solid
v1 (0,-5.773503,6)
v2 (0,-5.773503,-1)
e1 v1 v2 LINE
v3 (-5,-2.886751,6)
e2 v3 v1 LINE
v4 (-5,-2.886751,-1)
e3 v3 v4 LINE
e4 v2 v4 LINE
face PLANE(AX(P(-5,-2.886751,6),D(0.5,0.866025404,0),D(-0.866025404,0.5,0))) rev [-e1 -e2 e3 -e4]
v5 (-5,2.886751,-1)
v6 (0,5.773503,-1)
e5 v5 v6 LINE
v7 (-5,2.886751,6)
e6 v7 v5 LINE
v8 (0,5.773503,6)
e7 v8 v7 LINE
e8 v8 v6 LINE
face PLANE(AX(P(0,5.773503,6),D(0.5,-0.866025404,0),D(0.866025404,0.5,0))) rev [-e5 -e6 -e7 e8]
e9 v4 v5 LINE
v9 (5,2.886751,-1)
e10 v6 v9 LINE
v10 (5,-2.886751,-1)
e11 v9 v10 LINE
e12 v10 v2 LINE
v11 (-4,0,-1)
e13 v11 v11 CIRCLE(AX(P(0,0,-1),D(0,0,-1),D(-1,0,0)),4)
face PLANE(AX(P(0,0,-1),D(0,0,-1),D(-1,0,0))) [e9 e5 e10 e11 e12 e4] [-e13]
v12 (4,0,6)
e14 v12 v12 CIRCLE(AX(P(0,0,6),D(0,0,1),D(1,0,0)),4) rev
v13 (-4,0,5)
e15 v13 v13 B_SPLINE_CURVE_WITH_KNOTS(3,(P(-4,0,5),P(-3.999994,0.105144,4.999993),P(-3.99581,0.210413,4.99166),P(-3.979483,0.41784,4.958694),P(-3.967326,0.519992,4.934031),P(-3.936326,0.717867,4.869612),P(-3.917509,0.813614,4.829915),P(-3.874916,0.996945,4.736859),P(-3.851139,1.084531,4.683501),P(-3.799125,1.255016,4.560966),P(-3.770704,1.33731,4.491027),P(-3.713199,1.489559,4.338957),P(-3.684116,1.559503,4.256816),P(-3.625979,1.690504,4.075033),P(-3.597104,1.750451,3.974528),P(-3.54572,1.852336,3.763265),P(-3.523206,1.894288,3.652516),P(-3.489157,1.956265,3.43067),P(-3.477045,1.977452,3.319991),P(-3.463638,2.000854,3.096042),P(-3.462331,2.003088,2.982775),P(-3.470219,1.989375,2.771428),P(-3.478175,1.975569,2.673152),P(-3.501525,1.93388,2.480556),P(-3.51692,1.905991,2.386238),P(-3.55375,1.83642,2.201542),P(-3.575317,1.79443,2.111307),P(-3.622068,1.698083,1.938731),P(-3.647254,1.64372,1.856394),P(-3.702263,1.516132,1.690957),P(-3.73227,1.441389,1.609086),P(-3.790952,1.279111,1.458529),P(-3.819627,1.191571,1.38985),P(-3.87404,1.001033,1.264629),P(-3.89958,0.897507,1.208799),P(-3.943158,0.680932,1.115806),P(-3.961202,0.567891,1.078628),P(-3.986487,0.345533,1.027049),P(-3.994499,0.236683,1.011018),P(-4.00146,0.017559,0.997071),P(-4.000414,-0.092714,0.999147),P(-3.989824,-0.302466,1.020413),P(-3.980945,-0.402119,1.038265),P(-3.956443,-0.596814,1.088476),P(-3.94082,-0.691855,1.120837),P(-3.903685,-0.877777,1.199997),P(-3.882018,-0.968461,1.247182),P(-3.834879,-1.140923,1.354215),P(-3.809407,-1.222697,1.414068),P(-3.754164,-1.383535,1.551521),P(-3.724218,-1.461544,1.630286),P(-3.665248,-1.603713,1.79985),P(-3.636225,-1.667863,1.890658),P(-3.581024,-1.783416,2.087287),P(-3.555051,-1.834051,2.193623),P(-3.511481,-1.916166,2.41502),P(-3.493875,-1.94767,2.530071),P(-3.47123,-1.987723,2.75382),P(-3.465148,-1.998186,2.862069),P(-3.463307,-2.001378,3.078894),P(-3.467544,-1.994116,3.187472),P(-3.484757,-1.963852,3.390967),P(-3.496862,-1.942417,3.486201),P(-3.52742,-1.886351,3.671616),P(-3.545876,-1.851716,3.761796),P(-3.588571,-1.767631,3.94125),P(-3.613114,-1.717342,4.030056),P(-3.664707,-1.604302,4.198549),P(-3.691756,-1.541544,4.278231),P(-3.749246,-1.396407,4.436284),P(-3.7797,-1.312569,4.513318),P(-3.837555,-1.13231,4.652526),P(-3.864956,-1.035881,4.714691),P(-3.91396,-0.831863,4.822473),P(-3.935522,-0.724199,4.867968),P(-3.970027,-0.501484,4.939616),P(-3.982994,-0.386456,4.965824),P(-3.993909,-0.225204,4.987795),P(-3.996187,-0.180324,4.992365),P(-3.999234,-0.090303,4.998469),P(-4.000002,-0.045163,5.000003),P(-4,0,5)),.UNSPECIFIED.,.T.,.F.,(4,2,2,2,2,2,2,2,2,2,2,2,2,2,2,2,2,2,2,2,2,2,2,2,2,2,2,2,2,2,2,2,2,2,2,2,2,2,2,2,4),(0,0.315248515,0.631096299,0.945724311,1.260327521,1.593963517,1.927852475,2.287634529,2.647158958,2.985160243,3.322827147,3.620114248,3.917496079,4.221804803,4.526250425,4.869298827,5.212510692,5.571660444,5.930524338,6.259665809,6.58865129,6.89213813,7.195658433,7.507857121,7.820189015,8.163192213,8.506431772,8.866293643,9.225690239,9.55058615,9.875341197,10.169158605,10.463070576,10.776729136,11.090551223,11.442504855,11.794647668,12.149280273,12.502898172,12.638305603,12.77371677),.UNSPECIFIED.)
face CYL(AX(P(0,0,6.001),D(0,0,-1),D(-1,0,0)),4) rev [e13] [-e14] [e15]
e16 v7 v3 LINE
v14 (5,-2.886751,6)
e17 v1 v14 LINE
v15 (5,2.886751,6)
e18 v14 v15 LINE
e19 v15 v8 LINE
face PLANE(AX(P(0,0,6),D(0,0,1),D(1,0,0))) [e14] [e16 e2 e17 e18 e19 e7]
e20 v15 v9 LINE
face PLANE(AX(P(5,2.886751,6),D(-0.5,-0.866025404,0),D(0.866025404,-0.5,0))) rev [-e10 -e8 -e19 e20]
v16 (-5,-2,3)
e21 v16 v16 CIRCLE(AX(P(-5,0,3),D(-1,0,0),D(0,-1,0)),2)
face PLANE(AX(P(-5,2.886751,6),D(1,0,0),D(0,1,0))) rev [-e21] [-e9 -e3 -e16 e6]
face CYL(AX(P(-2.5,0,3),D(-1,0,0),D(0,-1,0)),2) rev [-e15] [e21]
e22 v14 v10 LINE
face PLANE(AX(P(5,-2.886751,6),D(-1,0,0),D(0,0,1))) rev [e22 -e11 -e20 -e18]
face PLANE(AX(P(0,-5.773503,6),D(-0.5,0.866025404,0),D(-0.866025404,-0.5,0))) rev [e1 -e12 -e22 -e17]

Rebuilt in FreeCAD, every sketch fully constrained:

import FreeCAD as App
import Part
import Sketcher
Q = App.Units.Quantity

doc = App.newDocument("Part")
params = doc.addObject("Spreadsheet::Sheet", "Params")
for row, (alias, value) in enumerate([
    ("pad1_length", "6 mm"),
    ("sketch2_diameter", "4 mm"),
    ("pocket1_length", "2.5 mm"),
    ("sketch3_diameter", "4 mm"),
    ("sketch4_diameter", "4 mm"),
    ("pad2_length", "1 mm"),
    ("sketch5_diameter", "8 mm"),
    ("pocket3_length", "7 mm"),
], start=1):
    params.set(f"A{row}", alias)
    params.set(f"B{row}", "=" + value)
    params.setAlias(f"B{row}", alias)

body = doc.addObject("PartDesign::Body", "Body")

sketch1 = doc.addObject("Sketcher::SketchObject", "Sketch")
body.addObject(sketch1)
sketch1.AttachmentSupport = (doc.XY_Plane, [""])
sketch1.MapMode = "FlatFace"
sketch1.addGeometry([
    Part.LineSegment(App.Vector(0, -6, 0), App.Vector(5, -3, 0)),
    Part.LineSegment(App.Vector(5, -3, 0), App.Vector(5, 3, 0)),
    Part.LineSegment(App.Vector(5, 3, 0), App.Vector(0, 6, 0)),
    Part.LineSegment(App.Vector(0, 6, 0), App.Vector(-5, 3, 0)),
    Part.LineSegment(App.Vector(-5, 3, 0), App.Vector(-5, -3, 0)),
    Part.LineSegment(App.Vector(-5, -3, 0), App.Vector(0, -6, 0)),
], False)
sketch1.addConstraint([
    Sketcher.Constraint("Coincident", 0, 2, 1, 1),
    Sketcher.Constraint("Coincident", 1, 2, 2, 1),
    Sketcher.Constraint("Coincident", 2, 2, 3, 1),
    Sketcher.Constraint("Coincident", 3, 2, 4, 1),
    Sketcher.Constraint("Coincident", 4, 2, 5, 1),
    Sketcher.Constraint("Coincident", 5, 2, 0, 1),
    Sketcher.Constraint("Vertical", 1),
    Sketcher.Constraint("Vertical", 4),
    Sketcher.Constraint("Symmetric", 0, 2, 3, 2, -1, 1),
    Sketcher.Constraint("Symmetric", 2, 2, 5, 2, -1, 1),
    Sketcher.Constraint("PointOnObject", 2, 2, -2),
    Sketcher.Constraint("Parallel", 2, 5),
    Sketcher.Constraint("Horizontal", 1, 2, 3, 2),
    Sketcher.Constraint("Angle", 0, Q("30 deg")),
    Sketcher.Constraint("DistanceX", -1, 1, 0, 2, 5.0),
    Sketcher.Constraint("DistanceY", 1, 1, 1, 2, 5.773503),
])
pad1 = doc.addObject("PartDesign::Pad", "Pad")
body.addObject(pad1)
pad1.Profile = sketch1
pad1.setExpression("Length", "Params.pad1_length")

sketch2 = doc.addObject("Sketcher::SketchObject", "Sketch001")
body.addObject(sketch2)
sketch2.AttachmentSupport = (doc.YZ_Plane, [""])
sketch2.MapMode = "FlatFace"
sketch2.AttachmentOffset = App.Placement(App.Vector(0, 0, -5), App.Rotation())
sketch2.addGeometry(Part.Circle(App.Vector(0, 3, 0), App.Vector(0, 0, 1), 2), False)
sketch2.addConstraint([
    Sketcher.Constraint("PointOnObject", 0, 3, -2),
    Sketcher.Constraint("Diameter", 0, 4.0),
    Sketcher.Constraint("DistanceY", -1, 1, 0, 3, 3.0),
])
sketch2.setExpression("Constraints[1]", "Params.sketch2_diameter")
pocket1 = doc.addObject("PartDesign::Pocket", "Pocket")
body.addObject(pocket1)
pocket1.Profile = sketch2
pocket1.setExpression("Length", "Params.pocket1_length")
pocket1.Reversed = True

sketch3 = doc.addObject("Sketcher::SketchObject", "Sketch002")
body.addObject(sketch3)
sketch3.AttachmentSupport = (doc.XY_Plane, [""])
sketch3.MapMode = "FlatFace"
sketch3.AttachmentOffset = App.Placement(App.Vector(0, 0, 6), App.Rotation())
sketch3.addGeometry(Part.Circle(App.Vector(0, 0, 0), App.Vector(0, 0, 1), 2), False)
sketch3.addConstraint([
    Sketcher.Constraint("Coincident", 0, 3, -1, 1),
    Sketcher.Constraint("Diameter", 0, 4.0),
])
sketch3.setExpression("Constraints[1]", "Params.sketch3_diameter")
pocket2 = doc.addObject("PartDesign::Pocket", "Pocket001")
body.addObject(pocket2)
pocket2.Profile = sketch3
pocket2.Type = "UpToFirst"

sketch4 = doc.addObject("Sketcher::SketchObject", "Sketch003")
body.addObject(sketch4)
sketch4.AttachmentSupport = (doc.XY_Plane, [""])
sketch4.MapMode = "FlatFace"
sketch4.addGeometry([
    Part.LineSegment(App.Vector(0, 5.8, 0), App.Vector(5, 2.9, 0)),
    Part.LineSegment(App.Vector(5, 2.9, 0), App.Vector(5, -2.9, 0)),
    Part.LineSegment(App.Vector(5, -2.9, 0), App.Vector(0, -5.8, 0)),
    Part.LineSegment(App.Vector(0, -5.8, 0), App.Vector(-5, -2.9, 0)),
    Part.LineSegment(App.Vector(-5, -2.9, 0), App.Vector(-5, 2.9, 0)),
    Part.LineSegment(App.Vector(-5, 2.9, 0), App.Vector(0, 5.8, 0)),
    Part.Circle(App.Vector(0, 0, 0), App.Vector(0, 0, 1), 2),
], False)
sketch4.addConstraint([
    Sketcher.Constraint("Coincident", 0, 2, 1, 1),
    Sketcher.Constraint("Coincident", 1, 2, 2, 1),
    Sketcher.Constraint("Coincident", 2, 2, 3, 1),
    Sketcher.Constraint("Coincident", 3, 2, 4, 1),
    Sketcher.Constraint("Coincident", 4, 2, 5, 1),
    Sketcher.Constraint("Coincident", 5, 2, 0, 1),
    Sketcher.Constraint("Vertical", 1),
    Sketcher.Constraint("Vertical", 4),
    Sketcher.Constraint("Coincident", 6, 3, -1, 1),
    Sketcher.Constraint("Symmetric", 0, 2, 3, 2, -1, 1),
    Sketcher.Constraint("Symmetric", 2, 2, 5, 2, -1, 1),
    Sketcher.Constraint("PointOnObject", 2, 2, -2),
    Sketcher.Constraint("Parallel", 2, 5),
    Sketcher.Constraint("Horizontal", 1, 2, 3, 2),
    Sketcher.Constraint("Diameter", 6, 4.0),
    Sketcher.Constraint("Angle", 0, Q("-30 deg")),
    Sketcher.Constraint("DistanceX", -1, 1, 0, 2, 5.0),
    Sketcher.Constraint("DistanceY", 1, 2, 1, 1, 5.773503),
])
sketch4.setExpression("Constraints[14]", "Params.sketch4_diameter")
pad2 = doc.addObject("PartDesign::Pad", "Pad001")
body.addObject(pad2)
pad2.Profile = sketch4
pad2.setExpression("Length", "Params.pad2_length")
pad2.Reversed = True

sketch5 = doc.addObject("Sketcher::SketchObject", "Sketch004")
body.addObject(sketch5)
sketch5.AttachmentSupport = (doc.XY_Plane, [""])
sketch5.MapMode = "FlatFace"
sketch5.AttachmentOffset = App.Placement(App.Vector(0, 0, -1), App.Rotation())
sketch5.addGeometry(Part.Circle(App.Vector(0, 0, 0), App.Vector(0, 0, 1), 4), False)
sketch5.addConstraint([
    Sketcher.Constraint("Coincident", 0, 3, -1, 1),
    Sketcher.Constraint("Diameter", 0, 8.0),
])
sketch5.setExpression("Constraints[1]", "Params.sketch5_diameter")
pocket3 = doc.addObject("PartDesign::Pocket", "Pocket002")
body.addObject(pocket3)
pocket3.Profile = sketch5
pocket3.setExpression("Length", "Params.pocket3_length")
pocket3.Reversed = True

doc.recompute()
